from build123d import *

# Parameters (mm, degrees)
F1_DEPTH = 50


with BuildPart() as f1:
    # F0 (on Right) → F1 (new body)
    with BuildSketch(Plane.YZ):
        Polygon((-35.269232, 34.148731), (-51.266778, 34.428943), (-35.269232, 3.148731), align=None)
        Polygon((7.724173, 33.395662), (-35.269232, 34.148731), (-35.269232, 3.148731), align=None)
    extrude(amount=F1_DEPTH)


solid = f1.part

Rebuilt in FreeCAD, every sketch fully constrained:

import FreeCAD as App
import Part
import Sketcher
from FreeCAD import Vector
Q = App.Units.Quantity

doc = App.newDocument("Part")
body = doc.addObject("PartDesign::Body", "Body")

# Sketch on YZ plane
sketch1 = body.newObject("Sketcher::SketchObject", "Sketch")
sketch1.AttachmentSupport = (doc.getObject("YZ_Plane"), [""])
sketch1.MapMode = "FlatFace"
sketch1.addGeometry(Part.LineSegment(Vector(-35, 34, 0), Vector(-51, 34, 0)), False)
sketch1.addGeometry(Part.LineSegment(Vector(-51, 34, 0), Vector(-35, 3, 0)), False)
sketch1.addGeometry(Part.LineSegment(Vector(-35, 3, 0), Vector(8, 33, 0)), False)
sketch1.addGeometry(Part.LineSegment(Vector(8, 33, 0), Vector(-35, 34, 0)), False)
sketch1.addConstraint(Sketcher.Constraint("Coincident", 0, 2, 1, 1))
sketch1.addConstraint(Sketcher.Constraint("Coincident", 1, 2, 2, 1))
sketch1.addConstraint(Sketcher.Constraint("Coincident", 2, 2, 3, 1))
sketch1.addConstraint(Sketcher.Constraint("Coincident", 3, 2, 0, 1))
sketch1.addConstraint(Sketcher.Constraint("Parallel", 0, 3))
sketch1.addConstraint(Sketcher.Constraint("Vertical", 1, 2, 3, 2))
sketch1.addConstraint(Sketcher.Constraint("Distance", 0, Q("16 mm")))
sketch1.addConstraint(Sketcher.Constraint("Distance", 3, Q("43 mm")))
sketch1.addConstraint(Sketcher.Constraint("DistanceY", 1, 2, 3, 2, Q("31 mm")))
sketch1.addConstraint(Sketcher.Constraint("DistanceX", 0, 2, -1, 1, Q("51.266778 mm")))
sketch1.addConstraint(Sketcher.Constraint("DistanceY", -1, 1, 1, 2, Q("3.148731 mm")))
sketch1.addConstraint(Sketcher.Constraint("DistanceY", 1, 2, 0, 2, Q("31.280212 mm")))
pad1 = body.newObject("PartDesign::Pad", "Pad")
pad1.Profile = sketch1
pad1.Length = 50

doc.recompute()
